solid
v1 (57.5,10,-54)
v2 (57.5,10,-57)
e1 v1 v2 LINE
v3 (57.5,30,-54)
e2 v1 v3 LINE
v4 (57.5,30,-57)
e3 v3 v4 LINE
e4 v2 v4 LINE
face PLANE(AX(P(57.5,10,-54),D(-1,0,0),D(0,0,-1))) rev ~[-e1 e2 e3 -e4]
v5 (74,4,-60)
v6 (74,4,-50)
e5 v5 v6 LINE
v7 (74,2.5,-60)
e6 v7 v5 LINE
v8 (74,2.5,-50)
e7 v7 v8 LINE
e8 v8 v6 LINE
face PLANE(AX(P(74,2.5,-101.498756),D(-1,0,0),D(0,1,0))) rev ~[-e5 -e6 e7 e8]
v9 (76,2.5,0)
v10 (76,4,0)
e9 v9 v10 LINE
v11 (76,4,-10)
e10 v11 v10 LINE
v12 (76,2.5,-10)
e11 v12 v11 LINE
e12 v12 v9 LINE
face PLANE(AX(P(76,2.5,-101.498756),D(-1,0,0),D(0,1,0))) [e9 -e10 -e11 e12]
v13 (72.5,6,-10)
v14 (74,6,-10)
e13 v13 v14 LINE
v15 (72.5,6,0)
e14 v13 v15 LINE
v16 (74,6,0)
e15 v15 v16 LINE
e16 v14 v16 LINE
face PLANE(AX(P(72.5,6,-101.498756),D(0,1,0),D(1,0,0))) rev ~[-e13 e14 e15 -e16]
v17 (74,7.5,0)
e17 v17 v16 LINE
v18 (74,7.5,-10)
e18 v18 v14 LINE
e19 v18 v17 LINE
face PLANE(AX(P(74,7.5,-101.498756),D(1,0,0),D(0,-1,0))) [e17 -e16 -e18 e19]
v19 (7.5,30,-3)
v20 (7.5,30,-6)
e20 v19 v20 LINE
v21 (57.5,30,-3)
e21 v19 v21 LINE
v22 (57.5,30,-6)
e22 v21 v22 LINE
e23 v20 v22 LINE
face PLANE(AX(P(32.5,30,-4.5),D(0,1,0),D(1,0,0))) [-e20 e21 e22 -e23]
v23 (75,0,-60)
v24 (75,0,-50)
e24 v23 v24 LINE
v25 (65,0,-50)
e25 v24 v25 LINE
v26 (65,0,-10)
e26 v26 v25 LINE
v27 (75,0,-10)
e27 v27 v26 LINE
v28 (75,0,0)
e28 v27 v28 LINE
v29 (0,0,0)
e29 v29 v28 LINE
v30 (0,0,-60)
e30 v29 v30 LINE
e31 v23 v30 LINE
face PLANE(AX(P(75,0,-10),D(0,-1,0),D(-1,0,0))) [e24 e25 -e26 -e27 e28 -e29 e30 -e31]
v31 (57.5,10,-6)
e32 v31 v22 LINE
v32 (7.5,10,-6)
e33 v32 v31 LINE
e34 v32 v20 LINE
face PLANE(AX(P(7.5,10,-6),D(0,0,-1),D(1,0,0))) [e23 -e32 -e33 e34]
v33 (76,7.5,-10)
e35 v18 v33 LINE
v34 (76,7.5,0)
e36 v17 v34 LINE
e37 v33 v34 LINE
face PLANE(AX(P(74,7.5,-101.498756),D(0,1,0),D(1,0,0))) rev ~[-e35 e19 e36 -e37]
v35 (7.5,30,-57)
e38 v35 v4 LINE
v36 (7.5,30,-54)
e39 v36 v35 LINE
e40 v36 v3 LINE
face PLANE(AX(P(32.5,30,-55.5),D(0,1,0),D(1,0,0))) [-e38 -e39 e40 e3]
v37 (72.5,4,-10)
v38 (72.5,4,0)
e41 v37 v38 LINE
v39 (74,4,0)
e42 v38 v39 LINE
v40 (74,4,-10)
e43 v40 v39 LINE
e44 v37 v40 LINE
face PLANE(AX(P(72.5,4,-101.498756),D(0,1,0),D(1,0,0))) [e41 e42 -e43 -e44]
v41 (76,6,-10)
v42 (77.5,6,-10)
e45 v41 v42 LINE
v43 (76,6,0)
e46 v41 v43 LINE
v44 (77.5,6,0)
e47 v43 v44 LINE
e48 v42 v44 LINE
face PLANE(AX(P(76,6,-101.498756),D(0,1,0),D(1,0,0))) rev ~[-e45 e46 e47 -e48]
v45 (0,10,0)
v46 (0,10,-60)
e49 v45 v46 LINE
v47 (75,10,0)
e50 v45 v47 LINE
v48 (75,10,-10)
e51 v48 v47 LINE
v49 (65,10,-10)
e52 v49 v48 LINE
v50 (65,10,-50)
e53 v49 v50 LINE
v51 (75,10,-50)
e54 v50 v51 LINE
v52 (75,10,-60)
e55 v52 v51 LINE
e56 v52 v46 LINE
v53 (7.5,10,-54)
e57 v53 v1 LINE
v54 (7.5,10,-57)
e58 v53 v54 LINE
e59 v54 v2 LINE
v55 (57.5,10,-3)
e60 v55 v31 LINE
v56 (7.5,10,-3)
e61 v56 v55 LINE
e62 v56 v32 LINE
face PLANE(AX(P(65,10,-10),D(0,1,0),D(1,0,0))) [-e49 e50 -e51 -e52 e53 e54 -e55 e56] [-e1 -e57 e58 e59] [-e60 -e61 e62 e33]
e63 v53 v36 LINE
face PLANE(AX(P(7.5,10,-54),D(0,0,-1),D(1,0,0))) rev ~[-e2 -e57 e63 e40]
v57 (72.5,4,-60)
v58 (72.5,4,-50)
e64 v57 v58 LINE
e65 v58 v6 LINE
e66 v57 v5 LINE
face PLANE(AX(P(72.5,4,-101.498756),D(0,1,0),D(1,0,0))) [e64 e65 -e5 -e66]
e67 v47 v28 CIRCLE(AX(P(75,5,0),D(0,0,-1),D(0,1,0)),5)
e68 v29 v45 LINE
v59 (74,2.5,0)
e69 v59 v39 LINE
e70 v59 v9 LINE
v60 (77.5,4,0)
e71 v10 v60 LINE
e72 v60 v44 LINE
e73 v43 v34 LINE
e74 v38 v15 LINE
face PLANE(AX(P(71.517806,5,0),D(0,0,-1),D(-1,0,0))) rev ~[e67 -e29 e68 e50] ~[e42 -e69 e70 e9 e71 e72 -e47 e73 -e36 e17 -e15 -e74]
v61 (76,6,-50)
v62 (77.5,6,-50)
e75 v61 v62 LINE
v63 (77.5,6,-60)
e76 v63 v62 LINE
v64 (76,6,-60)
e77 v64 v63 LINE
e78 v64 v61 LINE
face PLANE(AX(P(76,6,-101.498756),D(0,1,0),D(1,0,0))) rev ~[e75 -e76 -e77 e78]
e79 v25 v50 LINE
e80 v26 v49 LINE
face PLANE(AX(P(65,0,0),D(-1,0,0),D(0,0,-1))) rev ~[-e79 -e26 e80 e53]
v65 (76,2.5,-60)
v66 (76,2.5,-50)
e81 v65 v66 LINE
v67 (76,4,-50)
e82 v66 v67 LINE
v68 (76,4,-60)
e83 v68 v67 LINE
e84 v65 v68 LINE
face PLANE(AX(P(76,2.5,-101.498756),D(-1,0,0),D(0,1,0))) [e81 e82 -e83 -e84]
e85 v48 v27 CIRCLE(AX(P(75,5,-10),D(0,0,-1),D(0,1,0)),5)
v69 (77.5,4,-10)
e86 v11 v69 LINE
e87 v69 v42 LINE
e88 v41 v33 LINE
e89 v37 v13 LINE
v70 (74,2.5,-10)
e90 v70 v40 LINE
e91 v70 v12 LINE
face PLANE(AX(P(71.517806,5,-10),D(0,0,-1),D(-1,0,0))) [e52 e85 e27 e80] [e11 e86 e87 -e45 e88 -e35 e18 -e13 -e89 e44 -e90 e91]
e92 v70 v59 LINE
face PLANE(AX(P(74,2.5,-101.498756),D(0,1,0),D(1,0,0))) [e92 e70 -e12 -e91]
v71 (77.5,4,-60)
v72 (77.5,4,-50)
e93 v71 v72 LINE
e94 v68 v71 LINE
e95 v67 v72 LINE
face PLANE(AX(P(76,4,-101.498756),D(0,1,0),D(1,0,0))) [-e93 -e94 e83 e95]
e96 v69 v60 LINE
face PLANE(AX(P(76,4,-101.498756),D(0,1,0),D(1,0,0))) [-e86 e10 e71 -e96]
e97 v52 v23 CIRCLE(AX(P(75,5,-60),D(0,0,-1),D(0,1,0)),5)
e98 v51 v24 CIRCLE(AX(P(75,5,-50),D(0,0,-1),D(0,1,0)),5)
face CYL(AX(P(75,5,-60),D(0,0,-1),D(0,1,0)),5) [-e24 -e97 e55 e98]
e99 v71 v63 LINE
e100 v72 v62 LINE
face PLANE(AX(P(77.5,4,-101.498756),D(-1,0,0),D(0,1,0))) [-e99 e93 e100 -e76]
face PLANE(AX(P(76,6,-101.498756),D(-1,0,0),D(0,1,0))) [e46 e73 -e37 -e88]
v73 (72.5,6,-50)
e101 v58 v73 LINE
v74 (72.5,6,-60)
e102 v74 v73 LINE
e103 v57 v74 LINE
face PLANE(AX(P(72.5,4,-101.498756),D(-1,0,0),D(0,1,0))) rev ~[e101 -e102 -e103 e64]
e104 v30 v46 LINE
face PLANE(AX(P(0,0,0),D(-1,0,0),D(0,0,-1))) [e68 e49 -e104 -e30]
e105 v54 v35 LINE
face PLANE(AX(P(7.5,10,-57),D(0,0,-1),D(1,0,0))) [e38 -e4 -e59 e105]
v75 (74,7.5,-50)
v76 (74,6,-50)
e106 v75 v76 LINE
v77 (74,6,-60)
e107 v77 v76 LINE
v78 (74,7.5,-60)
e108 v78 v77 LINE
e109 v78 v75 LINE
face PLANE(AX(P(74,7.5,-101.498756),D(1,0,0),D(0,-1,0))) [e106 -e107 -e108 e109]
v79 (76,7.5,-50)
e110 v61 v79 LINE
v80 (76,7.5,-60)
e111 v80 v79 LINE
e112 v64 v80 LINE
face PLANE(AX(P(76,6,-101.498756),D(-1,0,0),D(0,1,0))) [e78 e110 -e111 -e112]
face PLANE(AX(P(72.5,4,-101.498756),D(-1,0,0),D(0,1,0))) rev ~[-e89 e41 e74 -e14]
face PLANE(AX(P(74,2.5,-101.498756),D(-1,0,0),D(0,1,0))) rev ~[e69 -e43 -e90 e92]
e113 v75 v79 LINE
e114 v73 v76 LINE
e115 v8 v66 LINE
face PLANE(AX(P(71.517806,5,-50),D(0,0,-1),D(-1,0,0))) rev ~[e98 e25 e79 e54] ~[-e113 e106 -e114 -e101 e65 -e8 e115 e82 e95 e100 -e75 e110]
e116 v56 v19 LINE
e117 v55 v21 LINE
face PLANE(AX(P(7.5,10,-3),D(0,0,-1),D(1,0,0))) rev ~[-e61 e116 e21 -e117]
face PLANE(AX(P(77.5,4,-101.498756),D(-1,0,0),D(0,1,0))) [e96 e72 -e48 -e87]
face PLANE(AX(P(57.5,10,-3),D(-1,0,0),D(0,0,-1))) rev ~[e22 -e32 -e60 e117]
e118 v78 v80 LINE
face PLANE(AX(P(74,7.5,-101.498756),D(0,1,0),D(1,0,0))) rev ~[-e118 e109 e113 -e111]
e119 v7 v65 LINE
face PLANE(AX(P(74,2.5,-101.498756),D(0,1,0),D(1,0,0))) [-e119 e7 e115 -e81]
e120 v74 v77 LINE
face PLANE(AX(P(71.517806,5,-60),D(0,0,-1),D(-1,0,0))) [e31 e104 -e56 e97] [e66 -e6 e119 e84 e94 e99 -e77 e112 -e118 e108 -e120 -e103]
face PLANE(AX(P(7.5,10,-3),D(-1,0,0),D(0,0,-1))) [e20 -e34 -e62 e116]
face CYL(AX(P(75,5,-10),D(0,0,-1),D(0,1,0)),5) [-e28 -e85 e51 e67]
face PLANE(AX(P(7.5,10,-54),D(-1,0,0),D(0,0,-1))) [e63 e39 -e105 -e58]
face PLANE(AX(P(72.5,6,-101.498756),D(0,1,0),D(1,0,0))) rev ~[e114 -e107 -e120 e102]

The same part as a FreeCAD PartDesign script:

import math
import FreeCAD as App
import Part
import Sketcher
from FreeCAD import Vector


def add_polygon(sketch, points):
    """Adds a closed chain of lines whose ends are joined by coincident constraints."""
    first, n = sketch.GeometryCount, len(points)
    for a, b in zip(points, points[1:] + points[:1]):
        sketch.addGeometry(Part.LineSegment(App.Vector(*a, 0), App.Vector(*b, 0)), False)
    for i in range(n):
        sketch.addConstraint(Sketcher.Constraint("Coincident", first + i, 2, first + (i + 1) % n, 1))

doc = App.newDocument("Part")
body = doc.addObject("PartDesign::Body", "Body")

sketch1 = body.newObject("Sketcher::SketchObject", "Sketch")
sketch1.AttachmentSupport = (doc.getObject("XZ_Plane"), [""])
sketch1.MapMode = "FlatFace"
add_polygon(sketch1, [(0, -60), (0, 0), (65, 0), (65, -60)])
sketch1.addConstraint([
    Sketcher.Constraint("Vertical", 0),
    Sketcher.Constraint("Horizontal", 1),
    Sketcher.Constraint("Vertical", 2),
    Sketcher.Constraint("Horizontal", 3),
    Sketcher.Constraint("Coincident", 0, 2, -1, 1),
    Sketcher.Constraint("DistanceX", 1, 1, 1, 2, 65.0),
    Sketcher.Constraint("DistanceY", 0, 1, 0, 2, 60.0),
])
pad1 = body.newObject("PartDesign::Pad", "Pad")
pad1.Profile = sketch1
pad1.Length = 10
pad1.Reversed = True

sketch2 = body.newObject("Sketcher::SketchObject", "Sketch001")
sketch2.AttachmentSupport = (doc.getObject("XY_Plane"), [""])
sketch2.MapMode = "FlatFace"
sketch2.AttachmentOffset = App.Placement(Vector(0, 0, -60), App.Rotation())
sketch2.addGeometry([
    Part.LineSegment(Vector(65, 10, 0), Vector(75, 10, 0)),
    Part.ArcOfCircle(Part.Circle(Vector(75, 5, 0), Vector(0, 0, 1), 5), math.radians(-90), math.radians(90)),
    Part.LineSegment(Vector(75, 0, 0), Vector(65, 0, 0)),
    Part.LineSegment(Vector(65, 0, 0), Vector(65, 10, 0)),
], False)
sketch2.addConstraint([
    Sketcher.Constraint("Tangent", 0, 2, 1, 2),
    Sketcher.Constraint("Tangent", 1, 1, 2, 1),
    Sketcher.Constraint("Coincident", 2, 2, 3, 1),
    Sketcher.Constraint("Coincident", 3, 2, 0, 1),
    Sketcher.Constraint("Horizontal", 0),
    Sketcher.Constraint("Horizontal", 2),
    Sketcher.Constraint("Vertical", 3),
    Sketcher.Constraint("PointOnObject", 1, 1, -1),
    Sketcher.Constraint("Equal", 2, 3),
    Sketcher.Constraint("Radius", 1, 5.0),
    Sketcher.Constraint("DistanceX", -1, 1, 1, 3, 75.0),
])
pad2 = body.newObject("PartDesign::Pad", "Pad001")
pad2.Profile = sketch2
pad2.Length = 10

sketch3 = body.newObject("Sketcher::SketchObject", "Sketch002")
sketch3.AttachmentSupport = (doc.getObject("XY_Plane"), [""])
sketch3.MapMode = "FlatFace"
sketch3.AttachmentOffset = App.Placement(Vector(0, 0, -10), App.Rotation())
sketch3.addGeometry([
    Part.LineSegment(Vector(75, 10, 0), Vector(65, 10, 0)),
    Part.LineSegment(Vector(65, 10, 0), Vector(65, 0, 0)),
    Part.LineSegment(Vector(65, 0, 0), Vector(75, 0, 0)),
    Part.ArcOfCircle(Part.Circle(Vector(75, 5, 0), Vector(0, 0, 1), 5), math.radians(-90), math.radians(90)),
], False)
sketch3.addConstraint([
    Sketcher.Constraint("Coincident", 0, 2, 1, 1),
    Sketcher.Constraint("Coincident", 1, 2, 2, 1),
    Sketcher.Constraint("Tangent", 2, 2, 3, 1),
    Sketcher.Constraint("Tangent", 3, 2, 0, 1),
    Sketcher.Constraint("Horizontal", 0),
    Sketcher.Constraint("Vertical", 1),
    Sketcher.Constraint("Horizontal", 2),
    Sketcher.Constraint("PointOnObject", 1, 2, -1),
    Sketcher.Constraint("Equal", 2, 1),
    Sketcher.Constraint("Radius", 3, 5.0),
    Sketcher.Constraint("DistanceX", -1, 1, 3, 3, 75.0),
])
pad3 = body.newObject("PartDesign::Pad", "Pad002")
pad3.Profile = sketch3
pad3.Length = 10

sketch4 = body.newObject("Sketcher::SketchObject", "Sketch003")
sketch4.AttachmentSupport = (doc.getObject("XY_Plane"), [""])
sketch4.MapMode = "FlatFace"
add_polygon(sketch4, [(77.5, 4), (77.5, 6), (76, 6), (76, 7.5), (74, 7.5), (74, 6), (72.5, 6), (72.5, 4), (74, 4), (74, 2.5), (76, 2.5), (76, 4)])
sketch4.addConstraint([
    Sketcher.Constraint("Vertical", 0),
    Sketcher.Constraint("Horizontal", 1),
    Sketcher.Constraint("Vertical", 2),
    Sketcher.Constraint("Horizontal", 3),
    Sketcher.Constraint("Vertical", 4),
    Sketcher.Constraint("Horizontal", 5),
    Sketcher.Constraint("Vertical", 6),
    Sketcher.Constraint("Horizontal", 7),
    Sketcher.Constraint("Vertical", 8),
    Sketcher.Constraint("Horizontal", 9),
    Sketcher.Constraint("Vertical", 10),
    Sketcher.Constraint("Horizontal", 11),
    Sketcher.Constraint("Horizontal", 1, 2, 4, 2),
    Sketcher.Constraint("Horizontal", 7, 2, 10, 2),
    Sketcher.Constraint("Vertical", 4, 2, 7, 2),
    Sketcher.Constraint("Vertical", 2, 2, 9, 2),
    Sketcher.Constraint("Equal", 1, 5),
    Sketcher.Constraint("Equal", 9, 0),
    Sketcher.Constraint("Equal", 11, 2),
    Sketcher.Constraint("Equal", 4, 8),
    Sketcher.Constraint("DistanceX", 3, 2, 3, 1, 2.0),
    Sketcher.Constraint("DistanceX", 1, 2, 1, 1, 1.5),
    Sketcher.Constraint("DistanceY", -1, 1, 0, 2, 6.0),
    Sketcher.Constraint("DistanceX", -1, 1, 1, 2, 76.0),
])
pocket1 = body.newObject("PartDesign::Pocket", "Pocket")
pocket1.Profile = sketch4
pocket1.Type = "ThroughAll"
pocket1.Midplane = True

sketch5 = body.newObject("Sketcher::SketchObject", "Sketch004")
sketch5.AttachmentSupport = (doc.getObject("XZ_Plane"), [""])
sketch5.MapMode = "FlatFace"
sketch5.AttachmentOffset = App.Placement(Vector(0, 0, -10), App.Rotation())
add_polygon(sketch5, [(7.5, -6), (7.5, -3), (57.5, -3), (57.5, -6)])
add_polygon(sketch5, [(7.5, -57), (7.5, -54), (57.5, -54), (57.5, -57)])
sketch5.addConstraint([
    Sketcher.Constraint("Vertical", 0),
    Sketcher.Constraint("Horizontal", 1),
    Sketcher.Constraint("Vertical", 2),
    Sketcher.Constraint("Horizontal", 3),
    Sketcher.Constraint("Vertical", 4),
    Sketcher.Constraint("Horizontal", 5),
    Sketcher.Constraint("Vertical", 6),
    Sketcher.Constraint("Horizontal", 7),
    Sketcher.Constraint("Vertical", 3, 2, 4, 2),
    Sketcher.Constraint("Vertical", 2, 2, 5, 2),
    Sketcher.Constraint("Equal", 2, 4),
    Sketcher.Constraint("DistanceX", 1, 1, 1, 2, 50.0),
    Sketcher.Constraint("DistanceY", 0, 1, 0, 2, 3.0),
    Sketcher.Constraint("DistanceY", 0, 2, -1, 1, 3.0),
    Sketcher.Constraint("DistanceY", 4, 2, -1, 1, 54.0),
    Sketcher.Constraint("DistanceX", -1, 1, 0, 2, 7.5),
])
pad4 = body.newObject("PartDesign::Pad", "Pad003")
pad4.Profile = sketch5
pad4.Length = 20
pad4.Reversed = True

doc.recompute()
